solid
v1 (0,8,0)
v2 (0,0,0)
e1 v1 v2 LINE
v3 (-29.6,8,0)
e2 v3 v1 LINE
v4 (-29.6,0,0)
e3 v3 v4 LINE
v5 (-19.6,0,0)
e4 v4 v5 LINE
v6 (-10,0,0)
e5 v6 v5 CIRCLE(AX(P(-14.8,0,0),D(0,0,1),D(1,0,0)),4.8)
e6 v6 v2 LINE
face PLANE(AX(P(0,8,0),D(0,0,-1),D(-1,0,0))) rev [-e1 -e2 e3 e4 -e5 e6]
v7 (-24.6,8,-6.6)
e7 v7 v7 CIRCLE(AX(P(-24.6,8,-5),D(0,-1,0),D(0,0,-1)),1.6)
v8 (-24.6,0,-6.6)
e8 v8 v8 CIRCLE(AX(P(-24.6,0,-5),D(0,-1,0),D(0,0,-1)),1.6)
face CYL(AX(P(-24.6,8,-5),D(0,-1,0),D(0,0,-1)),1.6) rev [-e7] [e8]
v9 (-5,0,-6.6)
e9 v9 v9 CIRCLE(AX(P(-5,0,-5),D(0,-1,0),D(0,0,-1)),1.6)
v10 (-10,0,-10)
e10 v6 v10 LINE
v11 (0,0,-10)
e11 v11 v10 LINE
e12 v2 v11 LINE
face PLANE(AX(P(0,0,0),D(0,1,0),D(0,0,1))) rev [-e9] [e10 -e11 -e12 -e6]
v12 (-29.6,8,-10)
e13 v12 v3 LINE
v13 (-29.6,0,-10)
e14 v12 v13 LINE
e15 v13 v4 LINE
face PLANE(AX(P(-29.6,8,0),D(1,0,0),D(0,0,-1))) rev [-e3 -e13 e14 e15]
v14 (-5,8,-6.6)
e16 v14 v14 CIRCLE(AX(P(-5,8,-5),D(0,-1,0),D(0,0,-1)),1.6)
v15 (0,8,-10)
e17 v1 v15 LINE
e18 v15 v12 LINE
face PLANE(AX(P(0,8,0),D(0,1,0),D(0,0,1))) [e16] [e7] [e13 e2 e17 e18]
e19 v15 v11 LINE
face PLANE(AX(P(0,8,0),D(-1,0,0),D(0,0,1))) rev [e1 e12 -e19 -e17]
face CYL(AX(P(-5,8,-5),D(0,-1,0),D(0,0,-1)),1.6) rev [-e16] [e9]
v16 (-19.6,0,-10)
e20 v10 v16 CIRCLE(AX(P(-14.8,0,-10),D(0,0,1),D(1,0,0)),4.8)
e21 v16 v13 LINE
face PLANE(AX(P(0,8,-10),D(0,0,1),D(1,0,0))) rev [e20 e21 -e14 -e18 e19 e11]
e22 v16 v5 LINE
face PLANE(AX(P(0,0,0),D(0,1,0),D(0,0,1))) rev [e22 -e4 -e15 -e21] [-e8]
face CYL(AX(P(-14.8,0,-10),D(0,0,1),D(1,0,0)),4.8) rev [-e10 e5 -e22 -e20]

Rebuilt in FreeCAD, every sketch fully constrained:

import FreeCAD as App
import Part
import Sketcher
from FreeCAD import Vector


def add_polygon(sketch, points):
    """Adds a closed chain of lines whose ends are joined by coincident constraints."""
    first, n = sketch.GeometryCount, len(points)
    for a, b in zip(points, points[1:] + points[:1]):
        sketch.addGeometry(Part.LineSegment(App.Vector(*a, 0), App.Vector(*b, 0)), False)
    for i in range(n):
        sketch.addConstraint(Sketcher.Constraint("Coincident", first + i, 2, first + (i + 1) % n, 1))

doc = App.newDocument("Part")
body = doc.addObject("PartDesign::Body", "Body")

sketch1 = body.newObject("Sketcher::SketchObject", "Sketch")
sketch1.AttachmentSupport = (doc.getObject("XZ_Plane"), [""])
sketch1.MapMode = "FlatFace"
add_polygon(sketch1, [(-30, -10), (-30, 0), (0, 0), (0, -10)])
sketch1.addConstraint(Sketcher.Constraint("Vertical", 0))
sketch1.addConstraint(Sketcher.Constraint("Horizontal", 1))
sketch1.addConstraint(Sketcher.Constraint("Vertical", 2))
sketch1.addConstraint(Sketcher.Constraint("Horizontal", 3))
sketch1.addConstraint(Sketcher.Constraint("Coincident", 1, 2, -1, 1))
sketch1.addConstraint(Sketcher.Constraint("DistanceY", 0, 1, 0, 2, 10.0))
sketch1.addConstraint(Sketcher.Constraint("DistanceX", 1, 1, 1, 2, 29.6))
pad1 = body.newObject("PartDesign::Pad", "Pad")
pad1.Profile = sketch1
pad1.Length = 8
pad1.Reversed = True

sketch2 = body.newObject("Sketcher::SketchObject", "Sketch001")
sketch2.AttachmentSupport = (doc.getObject("XY_Plane"), [""])
sketch2.MapMode = "FlatFace"
sketch2.addGeometry(Part.Circle(Vector(-14.8, 0, 0), Vector(0, 0, 1), 4.8), False)
sketch2.addConstraint(Sketcher.Constraint("PointOnObject", 0, 3, -1))
sketch2.addConstraint(Sketcher.Constraint("Diameter", 0, 9.6))
sketch2.addConstraint(Sketcher.Constraint("DistanceX", 0, 3, -1, 1, 14.8))
pocket1 = body.newObject("PartDesign::Pocket", "Pocket")
pocket1.Profile = sketch2
pocket1.Length = 10

sketch3 = body.newObject("Sketcher::SketchObject", "Sketch002")
sketch3.AttachmentSupport = (doc.getObject("XZ_Plane"), [""])
sketch3.MapMode = "FlatFace"
sketch3.addGeometry(Part.Circle(Vector(-24.6, -5, 0), Vector(0, 0, 1), 1.6), False)
sketch3.addConstraint(Sketcher.Constraint("Diameter", 0, 3.2))
sketch3.addConstraint(Sketcher.Constraint("DistanceY", 0, 3, -1, 1, 5.0))
sketch3.addConstraint(Sketcher.Constraint("DistanceX", 0, 3, -1, 1, 24.6))
pocket2 = body.newObject("PartDesign::Pocket", "Pocket001")
pocket2.Profile = sketch3
pocket2.Length = 8

sketch4 = body.newObject("Sketcher::SketchObject", "Sketch003")
sketch4.AttachmentSupport = (doc.getObject("XZ_Plane"), [""])
sketch4.MapMode = "FlatFace"
sketch4.addGeometry(Part.Circle(Vector(-5, -5, 0), Vector(0, 0, 1), 1.6), False)
sketch4.addConstraint(Sketcher.Constraint("Diameter", 0, 3.2))
sketch4.addConstraint(Sketcher.Constraint("DistanceX", 0, 3, -1, 1, 5.0))
sketch4.addConstraint(Sketcher.Constraint("DistanceY", 0, 3, -1, 1, 5.0))
pocket3 = body.newObject("PartDesign::Pocket", "Pocket002")
pocket3.Profile = sketch4
pocket3.Length = 8

doc.recompute()
